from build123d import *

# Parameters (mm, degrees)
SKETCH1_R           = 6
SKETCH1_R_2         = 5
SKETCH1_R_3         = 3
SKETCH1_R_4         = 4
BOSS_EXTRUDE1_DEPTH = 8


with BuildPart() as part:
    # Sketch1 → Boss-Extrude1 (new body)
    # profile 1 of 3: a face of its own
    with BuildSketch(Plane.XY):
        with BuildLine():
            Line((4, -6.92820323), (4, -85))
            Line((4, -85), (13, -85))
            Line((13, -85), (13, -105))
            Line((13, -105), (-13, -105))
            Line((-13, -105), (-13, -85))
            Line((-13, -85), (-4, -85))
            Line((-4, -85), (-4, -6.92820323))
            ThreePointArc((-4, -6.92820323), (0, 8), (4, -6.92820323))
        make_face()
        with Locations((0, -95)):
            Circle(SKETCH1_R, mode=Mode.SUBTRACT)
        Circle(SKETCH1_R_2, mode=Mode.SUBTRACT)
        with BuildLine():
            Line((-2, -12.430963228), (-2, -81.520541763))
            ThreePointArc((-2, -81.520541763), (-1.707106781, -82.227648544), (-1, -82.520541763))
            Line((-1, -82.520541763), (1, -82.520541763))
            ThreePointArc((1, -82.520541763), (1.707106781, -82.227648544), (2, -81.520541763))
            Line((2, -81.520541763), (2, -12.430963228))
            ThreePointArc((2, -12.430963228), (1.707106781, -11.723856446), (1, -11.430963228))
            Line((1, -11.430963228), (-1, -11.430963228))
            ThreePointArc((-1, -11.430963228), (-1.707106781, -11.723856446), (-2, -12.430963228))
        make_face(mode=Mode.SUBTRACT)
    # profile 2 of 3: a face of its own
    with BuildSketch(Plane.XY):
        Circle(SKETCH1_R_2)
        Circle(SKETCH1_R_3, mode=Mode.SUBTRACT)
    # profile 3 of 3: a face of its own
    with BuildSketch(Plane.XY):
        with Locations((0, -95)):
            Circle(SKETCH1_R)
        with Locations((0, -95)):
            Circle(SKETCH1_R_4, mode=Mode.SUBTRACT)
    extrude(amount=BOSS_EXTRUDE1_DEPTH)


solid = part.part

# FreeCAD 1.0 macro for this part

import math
import FreeCAD as App
import Part
import Sketcher
from FreeCAD import Vector

doc = App.newDocument("Part")
body = doc.addObject("PartDesign::Body", "Body")

# Sketch on XY plane
sketch1 = body.newObject("Sketcher::SketchObject", "Sketch")
sketch1.AttachmentSupport = (doc.getObject("XY_Plane"), [""])
sketch1.MapMode = "FlatFace"
sketch1.addGeometry([
    Part.LineSegment(Vector(4, -85, 0), Vector(4, -6.928203, 0)),  # 0
    Part.ArcOfCircle(Part.Circle(Vector(0, 0, 0), Vector(0, 0, 1), 8), math.radians(-60), math.radians(240)),  # 1
    Part.LineSegment(Vector(-4, -6.928203, 0), Vector(-4, -85, 0)),  # 2
    Part.LineSegment(Vector(-4, -85, 0), Vector(-13, -85, 0)),  # 3
    Part.LineSegment(Vector(-13, -85, 0), Vector(-13, -105, 0)),  # 4
    Part.LineSegment(Vector(-13, -105, 0), Vector(13, -105, 0)),  # 5
    Part.LineSegment(Vector(13, -105, 0), Vector(13, -85, 0)),  # 6
    Part.LineSegment(Vector(13, -85, 0), Vector(4, -85, 0)),  # 7
    Part.ArcOfCircle(Part.Circle(Vector(-1, -12.430963, 0), Vector(0, 0, 1), 1), math.radians(90), math.radians(180)),  # 8
    Part.LineSegment(Vector(-1, -11.430963, 0), Vector(1, -11.430963, 0)),  # 9
    Part.ArcOfCircle(Part.Circle(Vector(1, -12.430963, 0), Vector(0, 0, 1), 1), math.radians(0), math.radians(90)),  # 10
    Part.LineSegment(Vector(2, -12.430963, 0), Vector(2, -81.520542, 0)),  # 11
    Part.ArcOfCircle(Part.Circle(Vector(1, -81.520542, 0), Vector(0, 0, 1), 1), math.radians(-90), math.radians(0)),  # 12
    Part.LineSegment(Vector(1, -82.520542, 0), Vector(-1, -82.520542, 0)),  # 13
    Part.ArcOfCircle(Part.Circle(Vector(-1, -81.520542, 0), Vector(0, 0, 1), 1), math.radians(-180), math.radians(-90)),  # 14
    Part.LineSegment(Vector(-2, -81.520542, 0), Vector(-2, -12.430963, 0)),  # 15
    Part.Circle(Vector(0, -95, 0), Vector(0, 0, 1), 4),  # 16
    Part.Circle(Vector(0, 0, 0), Vector(0, 0, 1), 3),  # 17
], False)
sketch1.addConstraint([
    Sketcher.Constraint("Coincident", 0, 2, 1, 1),
    Sketcher.Constraint("Coincident", 1, 2, 2, 1),
    Sketcher.Constraint("Coincident", 2, 2, 3, 1),
    Sketcher.Constraint("Coincident", 3, 2, 4, 1),
    Sketcher.Constraint("Coincident", 4, 2, 5, 1),
    Sketcher.Constraint("Coincident", 5, 2, 6, 1),
    Sketcher.Constraint("Coincident", 6, 2, 7, 1),
    Sketcher.Constraint("Coincident", 7, 2, 0, 1),
    Sketcher.Constraint("Tangent", 8, 1, 9, 1),
    Sketcher.Constraint("Tangent", 9, 2, 10, 2),
    Sketcher.Constraint("Tangent", 10, 1, 11, 1),
    Sketcher.Constraint("Tangent", 11, 2, 12, 2),
    Sketcher.Constraint("Tangent", 12, 1, 13, 1),
    Sketcher.Constraint("Tangent", 13, 2, 14, 2),
    Sketcher.Constraint("Tangent", 14, 1, 15, 1),
    Sketcher.Constraint("Tangent", 15, 2, 8, 2),
    Sketcher.Constraint("Vertical", 0),
    Sketcher.Constraint("Vertical", 2),
    Sketcher.Constraint("Horizontal", 3),
    Sketcher.Constraint("Vertical", 4),
    Sketcher.Constraint("Horizontal", 5),
    Sketcher.Constraint("Vertical", 6),
    Sketcher.Constraint("Horizontal", 7),
    Sketcher.Constraint("Horizontal", 9),
    Sketcher.Constraint("Vertical", 11),
    Sketcher.Constraint("Horizontal", 13),
    Sketcher.Constraint("Vertical", 15),
    Sketcher.Constraint("Coincident", 1, 3, -1, 1),
    Sketcher.Constraint("Coincident", 17, 3, -1, 1),
    Sketcher.Constraint("Equal", 8, 10),
    Sketcher.Constraint("Equal", 10, 12),
    Sketcher.Constraint("Equal", 12, 14),
    Sketcher.Constraint("Symmetric", 3, 2, 6, 2, -2),
    Sketcher.Constraint("PointOnObject", 16, 3, -2),
    Sketcher.Constraint("Horizontal", 0, 2, 1, 2),
    Sketcher.Constraint("Diameter", 16, 8.0),
    Sketcher.Constraint("Diameter", 17, 6.0),
    Sketcher.Constraint("Radius", 1, 8.0),
    Sketcher.Constraint("Radius", 8, 1.0),
    Sketcher.Constraint("DistanceX", 3, 2, 3, 1, 9.0),
    Sketcher.Constraint("DistanceX", 5, 1, 5, 2, 26.0),
    Sketcher.Constraint("DistanceX", 9, 1, 9, 2, 2.0),
    Sketcher.Constraint("DistanceY", 4, 2, 4, 1, 20.0),
    Sketcher.Constraint("DistanceX", 8, 3, -1, 1, 1.0),
    Sketcher.Constraint("DistanceY", 16, 3, -1, 1, 95.0),
    Sketcher.Constraint("DistanceY", 2, 2, -1, 1, 85.0),
    Sketcher.Constraint("DistanceY", 11, 2, 11, 1, 69.089579),
    Sketcher.Constraint("DistanceY", 12, 3, -1, 1, 81.520542),
])
pad1 = body.newObject("PartDesign::Pad", "Pad")
pad1.Profile = sketch1
pad1.Length = 8

doc.recompute()
